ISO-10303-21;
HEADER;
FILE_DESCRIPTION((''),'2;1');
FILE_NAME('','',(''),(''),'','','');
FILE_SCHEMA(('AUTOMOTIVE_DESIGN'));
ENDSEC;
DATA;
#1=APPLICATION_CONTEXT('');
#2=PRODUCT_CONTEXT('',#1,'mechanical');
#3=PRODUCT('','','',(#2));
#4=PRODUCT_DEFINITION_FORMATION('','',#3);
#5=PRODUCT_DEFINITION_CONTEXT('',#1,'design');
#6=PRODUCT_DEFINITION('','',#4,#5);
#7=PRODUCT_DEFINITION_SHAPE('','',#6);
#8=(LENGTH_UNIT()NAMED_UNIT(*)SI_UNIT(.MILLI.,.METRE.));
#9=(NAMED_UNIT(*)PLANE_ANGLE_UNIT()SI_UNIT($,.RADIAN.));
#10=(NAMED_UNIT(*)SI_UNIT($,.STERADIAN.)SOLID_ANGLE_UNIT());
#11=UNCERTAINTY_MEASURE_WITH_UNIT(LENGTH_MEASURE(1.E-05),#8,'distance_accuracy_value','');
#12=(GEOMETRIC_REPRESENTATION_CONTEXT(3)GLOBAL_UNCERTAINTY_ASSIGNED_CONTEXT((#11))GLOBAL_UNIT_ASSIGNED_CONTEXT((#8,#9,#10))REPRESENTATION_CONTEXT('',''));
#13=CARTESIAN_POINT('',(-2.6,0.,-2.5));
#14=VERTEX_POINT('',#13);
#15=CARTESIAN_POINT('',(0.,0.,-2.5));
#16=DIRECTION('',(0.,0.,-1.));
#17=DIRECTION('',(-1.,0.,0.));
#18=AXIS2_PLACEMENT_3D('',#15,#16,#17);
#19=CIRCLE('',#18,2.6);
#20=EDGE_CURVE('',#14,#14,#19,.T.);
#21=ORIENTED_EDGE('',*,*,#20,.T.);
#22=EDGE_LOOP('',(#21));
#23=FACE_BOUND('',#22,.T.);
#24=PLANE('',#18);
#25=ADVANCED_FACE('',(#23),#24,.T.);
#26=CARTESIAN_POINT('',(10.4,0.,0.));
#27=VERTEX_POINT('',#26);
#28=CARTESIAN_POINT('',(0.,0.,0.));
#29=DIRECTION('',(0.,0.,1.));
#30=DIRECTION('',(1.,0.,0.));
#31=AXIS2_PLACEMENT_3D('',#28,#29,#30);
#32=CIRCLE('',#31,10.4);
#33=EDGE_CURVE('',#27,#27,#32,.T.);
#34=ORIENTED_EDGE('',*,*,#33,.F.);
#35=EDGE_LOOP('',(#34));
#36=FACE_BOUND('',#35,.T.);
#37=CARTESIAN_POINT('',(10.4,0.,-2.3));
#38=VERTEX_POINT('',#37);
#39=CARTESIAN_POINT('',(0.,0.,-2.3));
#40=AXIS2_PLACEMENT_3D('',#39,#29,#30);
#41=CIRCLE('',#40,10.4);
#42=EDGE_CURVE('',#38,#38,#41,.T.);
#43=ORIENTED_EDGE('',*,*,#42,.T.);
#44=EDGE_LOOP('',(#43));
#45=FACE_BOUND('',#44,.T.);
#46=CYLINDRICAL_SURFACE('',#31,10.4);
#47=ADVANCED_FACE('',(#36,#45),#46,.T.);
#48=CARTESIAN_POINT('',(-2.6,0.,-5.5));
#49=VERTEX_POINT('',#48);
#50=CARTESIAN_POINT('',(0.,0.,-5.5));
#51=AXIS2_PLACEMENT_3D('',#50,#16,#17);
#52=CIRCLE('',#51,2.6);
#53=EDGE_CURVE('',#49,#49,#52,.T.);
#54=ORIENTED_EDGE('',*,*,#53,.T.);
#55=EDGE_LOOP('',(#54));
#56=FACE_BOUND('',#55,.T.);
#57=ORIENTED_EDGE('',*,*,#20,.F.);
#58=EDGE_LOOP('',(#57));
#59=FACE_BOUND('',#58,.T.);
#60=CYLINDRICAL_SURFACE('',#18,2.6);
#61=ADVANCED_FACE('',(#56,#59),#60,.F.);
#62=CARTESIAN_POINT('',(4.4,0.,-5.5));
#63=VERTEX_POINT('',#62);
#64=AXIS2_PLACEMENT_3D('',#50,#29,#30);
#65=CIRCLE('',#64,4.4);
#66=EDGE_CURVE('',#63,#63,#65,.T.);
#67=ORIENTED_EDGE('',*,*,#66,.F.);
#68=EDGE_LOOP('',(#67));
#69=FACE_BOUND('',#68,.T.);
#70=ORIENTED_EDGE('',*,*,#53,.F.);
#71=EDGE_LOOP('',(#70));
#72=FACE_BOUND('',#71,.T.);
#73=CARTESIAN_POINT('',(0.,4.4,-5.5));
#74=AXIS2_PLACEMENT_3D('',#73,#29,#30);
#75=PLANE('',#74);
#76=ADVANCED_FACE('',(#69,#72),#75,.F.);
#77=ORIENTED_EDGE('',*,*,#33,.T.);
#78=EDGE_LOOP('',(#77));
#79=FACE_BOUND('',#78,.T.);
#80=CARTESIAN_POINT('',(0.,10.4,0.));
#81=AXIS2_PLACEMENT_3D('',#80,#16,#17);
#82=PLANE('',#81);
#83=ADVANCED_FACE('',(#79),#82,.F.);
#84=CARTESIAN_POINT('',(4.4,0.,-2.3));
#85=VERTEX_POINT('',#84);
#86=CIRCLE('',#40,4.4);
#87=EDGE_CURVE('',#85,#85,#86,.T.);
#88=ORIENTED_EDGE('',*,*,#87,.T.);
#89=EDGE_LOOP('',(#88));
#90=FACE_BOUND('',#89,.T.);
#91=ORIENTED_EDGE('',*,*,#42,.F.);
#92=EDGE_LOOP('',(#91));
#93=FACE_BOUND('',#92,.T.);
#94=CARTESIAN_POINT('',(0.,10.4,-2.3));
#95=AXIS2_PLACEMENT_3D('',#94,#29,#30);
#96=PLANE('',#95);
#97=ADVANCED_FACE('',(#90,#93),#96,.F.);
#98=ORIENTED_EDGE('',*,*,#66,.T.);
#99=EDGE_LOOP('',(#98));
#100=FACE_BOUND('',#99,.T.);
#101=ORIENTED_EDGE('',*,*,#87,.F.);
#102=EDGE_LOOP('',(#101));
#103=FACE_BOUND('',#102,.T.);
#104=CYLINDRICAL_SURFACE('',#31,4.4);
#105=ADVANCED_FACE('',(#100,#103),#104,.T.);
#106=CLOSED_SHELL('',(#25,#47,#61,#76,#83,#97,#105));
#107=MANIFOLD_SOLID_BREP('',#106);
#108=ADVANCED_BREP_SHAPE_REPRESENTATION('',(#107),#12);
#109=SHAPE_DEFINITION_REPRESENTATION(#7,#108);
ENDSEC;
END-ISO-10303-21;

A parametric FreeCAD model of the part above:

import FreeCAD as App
import Part
import Sketcher
from FreeCAD import Vector


def add_polygon(sketch, points):
    """Adds a closed chain of lines whose ends are joined by coincident constraints."""
    first, n = sketch.GeometryCount, len(points)
    for a, b in zip(points, points[1:] + points[:1]):
        sketch.addGeometry(Part.LineSegment(App.Vector(*a, 0), App.Vector(*b, 0)), False)
    for i in range(n):
        sketch.addConstraint(Sketcher.Constraint("Coincident", first + i, 2, first + (i + 1) % n, 1))

doc = App.newDocument("Part")
body = doc.addObject("PartDesign::Body", "Body")

sketch1 = body.newObject("Sketcher::SketchObject", "Sketch")
sketch1.AttachmentSupport = (doc.getObject("YZ_Plane"), [""])
sketch1.MapMode = "FlatFace"
add_polygon(sketch1, [(10.4, -2.3), (10.4, 0), (0, 0), (0, -5.5), (4.4, -5.5), (4.4, -2.3)])
sketch1.addConstraint(Sketcher.Constraint("Vertical", 0))
sketch1.addConstraint(Sketcher.Constraint("Horizontal", 1))
sketch1.addConstraint(Sketcher.Constraint("Vertical", 2))
sketch1.addConstraint(Sketcher.Constraint("Horizontal", 3))
sketch1.addConstraint(Sketcher.Constraint("Vertical", 4))
sketch1.addConstraint(Sketcher.Constraint("Horizontal", 5))
sketch1.addConstraint(Sketcher.Constraint("Coincident", 1, 2, -1, 1))
sketch1.addConstraint(Sketcher.Constraint("DistanceX", 5, 1, 5, 2, 6.0))
sketch1.addConstraint(Sketcher.Constraint("DistanceX", 1, 2, 1, 1, 10.4))
sketch1.addConstraint(Sketcher.Constraint("DistanceY", 0, 1, 0, 2, 2.3))
sketch1.addConstraint(Sketcher.Constraint("DistanceY", 2, 2, 2, 1, 5.5))
revolution = body.newObject("PartDesign::Revolution", "Revolution")
revolution.Profile = sketch1
revolution.ReferenceAxis = (sketch1, ["V_Axis"])
revolution.Angle = 360

sketch2 = body.newObject("Sketcher::SketchObject", "Sketch001")
sketch2.AttachmentSupport = (doc.getObject("XY_Plane"), [""])
sketch2.MapMode = "FlatFace"
sketch2.AttachmentOffset = App.Placement(Vector(0, 0, -5.5), App.Rotation())
sketch2.addGeometry(Part.Circle(Vector(0, 0, 0), Vector(0, 0, 1), 2.6), False)
sketch2.addConstraint(Sketcher.Constraint("Coincident", 0, 3, -1, 1))
sketch2.addConstraint(Sketcher.Constraint("Diameter", 0, 5.2))
pocket1 = body.newObject("PartDesign::Pocket", "Pocket")
pocket1.Profile = sketch2
pocket1.Length = 3
pocket1.Reversed = True

doc.recompute()
